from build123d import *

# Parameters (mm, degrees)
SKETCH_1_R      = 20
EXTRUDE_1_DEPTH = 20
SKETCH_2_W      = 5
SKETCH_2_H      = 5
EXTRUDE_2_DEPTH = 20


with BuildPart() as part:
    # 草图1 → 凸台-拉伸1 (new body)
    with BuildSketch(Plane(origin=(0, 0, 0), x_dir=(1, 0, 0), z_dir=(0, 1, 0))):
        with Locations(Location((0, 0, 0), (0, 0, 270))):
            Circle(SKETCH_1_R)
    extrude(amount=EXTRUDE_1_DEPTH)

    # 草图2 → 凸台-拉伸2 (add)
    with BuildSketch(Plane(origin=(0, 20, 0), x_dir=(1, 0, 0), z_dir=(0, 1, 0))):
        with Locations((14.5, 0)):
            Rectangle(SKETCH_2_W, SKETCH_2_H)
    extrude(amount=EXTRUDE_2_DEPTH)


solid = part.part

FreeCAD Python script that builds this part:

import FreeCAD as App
import Part
import Sketcher
from FreeCAD import Vector


def add_polygon(sketch, points):
    """Adds a closed chain of lines whose ends are joined by coincident constraints."""
    first, n = sketch.GeometryCount, len(points)
    for a, b in zip(points, points[1:] + points[:1]):
        sketch.addGeometry(Part.LineSegment(App.Vector(*a, 0), App.Vector(*b, 0)), False)
    for i in range(n):
        sketch.addConstraint(Sketcher.Constraint("Coincident", first + i, 2, first + (i + 1) % n, 1))

doc = App.newDocument("Part")
body = doc.addObject("PartDesign::Body", "Body")

# Sketch on XZ plane
sketch1 = doc.addObject("Sketcher::SketchObject", "Sketch")
body.addObject(sketch1)
sketch1.AttachmentSupport = (doc.XZ_Plane, [""])
sketch1.MapMode = "FlatFace"
sketch1.addGeometry(Part.Circle(Vector(0, 0, 0), Vector(0, 0, 1), 20), False)
sketch1.addConstraint([
    Sketcher.Constraint("Coincident", 0, 3, -1, 1),
    Sketcher.Constraint("Diameter", 0, 40.0),
])
pad1 = doc.addObject("PartDesign::Pad", "Pad")
body.addObject(pad1)
pad1.Profile = sketch1
pad1.Length = 20
pad1.Reversed = True

# Sketch on XZ plane
sketch2 = doc.addObject("Sketcher::SketchObject", "Sketch001")
body.addObject(sketch2)
sketch2.AttachmentSupport = (doc.XZ_Plane, [""])
sketch2.MapMode = "FlatFace"
sketch2.AttachmentOffset = App.Placement(Vector(0, 0, -20), App.Rotation())
add_polygon(sketch2, [(12, -2), (12, 2), (17, 2), (17, -2)])  # lines 0-3
sketch2.addConstraint([
    Sketcher.Constraint("Vertical", 0),
    Sketcher.Constraint("Horizontal", 1),
    Sketcher.Constraint("Vertical", 2),
    Sketcher.Constraint("Horizontal", 3),
    Sketcher.Constraint("Equal", 3, 0),
    Sketcher.Constraint("DistanceX", 1, 1, 1, 2, 5.0),
    Sketcher.Constraint("DistanceX", -1, 1, 0, 2, 12.0),
    Sketcher.Constraint("DistanceY", -1, 1, 0, 2, 2.5),
])
pad2 = doc.addObject("PartDesign::Pad", "Pad001")
body.addObject(pad2)
pad2.Profile = sketch2
pad2.Length = 20
pad2.Reversed = True

doc.recompute()
